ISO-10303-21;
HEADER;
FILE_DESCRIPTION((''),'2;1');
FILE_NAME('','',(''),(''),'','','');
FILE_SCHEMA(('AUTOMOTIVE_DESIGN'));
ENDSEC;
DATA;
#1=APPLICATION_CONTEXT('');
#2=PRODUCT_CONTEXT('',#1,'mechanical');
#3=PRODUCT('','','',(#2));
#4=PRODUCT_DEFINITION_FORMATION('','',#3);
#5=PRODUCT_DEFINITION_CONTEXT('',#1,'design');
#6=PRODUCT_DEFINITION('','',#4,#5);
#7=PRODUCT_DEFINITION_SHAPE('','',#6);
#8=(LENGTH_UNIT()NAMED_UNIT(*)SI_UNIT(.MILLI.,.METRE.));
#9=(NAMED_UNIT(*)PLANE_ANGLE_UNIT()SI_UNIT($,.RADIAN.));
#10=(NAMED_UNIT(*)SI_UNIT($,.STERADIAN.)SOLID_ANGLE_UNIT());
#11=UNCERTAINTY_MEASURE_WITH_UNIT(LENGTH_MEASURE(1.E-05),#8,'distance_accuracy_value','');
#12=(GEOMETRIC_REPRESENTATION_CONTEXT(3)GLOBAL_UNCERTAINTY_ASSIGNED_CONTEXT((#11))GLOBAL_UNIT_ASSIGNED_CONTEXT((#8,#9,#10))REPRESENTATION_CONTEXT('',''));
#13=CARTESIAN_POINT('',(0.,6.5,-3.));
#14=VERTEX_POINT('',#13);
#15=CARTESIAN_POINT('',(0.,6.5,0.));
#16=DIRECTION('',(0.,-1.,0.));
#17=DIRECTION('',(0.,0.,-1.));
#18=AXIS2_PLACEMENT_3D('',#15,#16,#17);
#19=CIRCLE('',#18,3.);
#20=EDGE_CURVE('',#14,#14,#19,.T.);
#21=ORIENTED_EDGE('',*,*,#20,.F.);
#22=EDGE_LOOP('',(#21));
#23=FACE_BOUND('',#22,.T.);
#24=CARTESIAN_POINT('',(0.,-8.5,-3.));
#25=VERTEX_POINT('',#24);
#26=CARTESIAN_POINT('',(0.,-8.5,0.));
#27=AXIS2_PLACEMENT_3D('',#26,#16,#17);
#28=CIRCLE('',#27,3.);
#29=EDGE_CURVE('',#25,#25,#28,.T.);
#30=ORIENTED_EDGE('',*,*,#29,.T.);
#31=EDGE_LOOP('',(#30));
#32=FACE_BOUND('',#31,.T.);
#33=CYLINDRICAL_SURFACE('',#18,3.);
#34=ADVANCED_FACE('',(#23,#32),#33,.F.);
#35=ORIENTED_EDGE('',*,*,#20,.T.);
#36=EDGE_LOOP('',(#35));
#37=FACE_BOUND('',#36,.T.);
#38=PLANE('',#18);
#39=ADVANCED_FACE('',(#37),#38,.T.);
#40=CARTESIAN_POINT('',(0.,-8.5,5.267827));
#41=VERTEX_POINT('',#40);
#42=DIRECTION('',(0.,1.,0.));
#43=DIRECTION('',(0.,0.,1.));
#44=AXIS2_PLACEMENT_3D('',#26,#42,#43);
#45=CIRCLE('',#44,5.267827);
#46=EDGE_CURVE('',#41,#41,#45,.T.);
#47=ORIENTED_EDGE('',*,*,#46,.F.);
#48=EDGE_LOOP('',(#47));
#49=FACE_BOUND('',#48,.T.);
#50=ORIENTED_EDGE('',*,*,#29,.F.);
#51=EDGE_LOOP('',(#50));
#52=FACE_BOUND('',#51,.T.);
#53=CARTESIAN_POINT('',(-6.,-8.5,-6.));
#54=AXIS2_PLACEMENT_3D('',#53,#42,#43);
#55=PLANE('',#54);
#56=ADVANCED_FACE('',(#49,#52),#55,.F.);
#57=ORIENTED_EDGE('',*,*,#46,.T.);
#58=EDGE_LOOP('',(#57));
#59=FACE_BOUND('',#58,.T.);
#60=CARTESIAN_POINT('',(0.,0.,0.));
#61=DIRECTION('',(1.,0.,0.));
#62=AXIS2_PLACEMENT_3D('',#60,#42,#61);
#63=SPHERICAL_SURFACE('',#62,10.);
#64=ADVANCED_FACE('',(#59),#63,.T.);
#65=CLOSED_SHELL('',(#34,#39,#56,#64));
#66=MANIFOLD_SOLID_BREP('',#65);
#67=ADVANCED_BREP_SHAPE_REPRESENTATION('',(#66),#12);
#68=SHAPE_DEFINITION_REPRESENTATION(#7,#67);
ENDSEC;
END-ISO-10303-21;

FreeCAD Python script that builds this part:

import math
import FreeCAD as App
import Part
import Sketcher

V = App.Vector


def add_polygon(sketch, points):
    """Adds a closed chain of lines whose ends are joined by coincident constraints."""
    first, n = sketch.GeometryCount, len(points)
    for a, b in zip(points, points[1:] + points[:1]):
        sketch.addGeometry(Part.LineSegment(App.Vector(*a, 0), App.Vector(*b, 0)), False)
    for i in range(n):
        sketch.addConstraint(Sketcher.Constraint("Coincident", first + i, 2, first + (i + 1) % n, 1))

doc = App.newDocument("Part")
params = doc.addObject("Spreadsheet::Sheet", "Params")
for row, (alias, value) in enumerate([
    ("sketch1_radius", "10 mm"),
    ("revolution_angle", "360 deg"),
    ("sketch2_width", "12 mm"),
    ("sketch2_height", "3 mm"),
    ("pocket1_length", "12 mm"),
    ("sketch3_diameter", "6 mm"),
    ("pocket2_length", "15 mm"),
], start=1):
    params.set(f"A{row}", alias)
    params.set(f"B{row}", "=" + value)
    params.setAlias(f"B{row}", alias)

body = doc.addObject("PartDesign::Body", "Body")

sketch1 = body.newObject("Sketcher::SketchObject", "Sketch")
sketch1.AttachmentSupport = (doc.getObject("XY_Plane"), [""])
sketch1.MapMode = "FlatFace"
sketch1.addGeometry([
    Part.LineSegment(V(0, 10, 0), V(0, -10, 0)),
    Part.ArcOfCircle(Part.Circle(V(0, 0, 0), V(0, 0, 1), 10), math.radians(-90), math.radians(90)),
], False)
sketch1.addConstraint([
    Sketcher.Constraint("Coincident", 0, 1, 1, 2),
    Sketcher.Constraint("Coincident", 1, 1, 0, 2),
    Sketcher.Constraint("Vertical", 0),
    Sketcher.Constraint("Coincident", 1, 3, -1, 1),
    Sketcher.Constraint("PointOnObject", 0, 1, -2),
    Sketcher.Constraint("Radius", 1, 10.0),
])
sketch1.setExpression("Constraints[5]", "Params.sketch1_radius")
revolution = body.newObject("PartDesign::Revolution", "Revolution")
revolution.Profile = sketch1
revolution.ReferenceAxis = (sketch1, ["V_Axis"])
revolution.setExpression("Angle", "Params.revolution_angle")

sketch2 = body.newObject("Sketcher::SketchObject", "Sketch001")
sketch2.AttachmentSupport = (doc.getObject("XY_Plane"), [""])
sketch2.MapMode = "FlatFace"
add_polygon(sketch2, [(-6, -8.5), (-6, -11.5), (6, -11.5), (6, -8.5)])
sketch2.addConstraint([
    Sketcher.Constraint("Vertical", 0),
    Sketcher.Constraint("Horizontal", 1),
    Sketcher.Constraint("Vertical", 2),
    Sketcher.Constraint("Horizontal", 3),
    Sketcher.Constraint("DistanceX", 1, 1, 1, 2, 12.0),
    Sketcher.Constraint("DistanceY", 0, 2, 0, 1, 3.0),
    Sketcher.Constraint("DistanceX", 0, 2, -1, 1, 6.0),
    Sketcher.Constraint("DistanceY", 0, 2, -1, 1, 11.5),
])
sketch2.setExpression("Constraints[8]", "Params.sketch2_width")
sketch2.setExpression("Constraints[9]", "Params.sketch2_height")
pocket1 = body.newObject("PartDesign::Pocket", "Pocket")
pocket1.Profile = sketch2
pocket1.setExpression("Length", "Params.pocket1_length")
pocket1.Midplane = True

sketch3 = body.newObject("Sketcher::SketchObject", "Sketch002")
sketch3.AttachmentSupport = (doc.getObject("XZ_Plane"), [""])
sketch3.MapMode = "FlatFace"
sketch3.AttachmentOffset = App.Placement(V(0, 0, 8.5), App.Rotation())
sketch3.addGeometry(Part.Circle(V(0, 0, 0), V(0, 0, 1), 3), False)
sketch3.addConstraint([
    Sketcher.Constraint("Coincident", 0, 3, -1, 1),
    Sketcher.Constraint("Diameter", 0, 6.0),
])
sketch3.setExpression("Constraints[1]", "Params.sketch3_diameter")
pocket2 = body.newObject("PartDesign::Pocket", "Pocket001")
pocket2.Profile = sketch3
pocket2.setExpression("Length", "Params.pocket2_length")

doc.recompute()
